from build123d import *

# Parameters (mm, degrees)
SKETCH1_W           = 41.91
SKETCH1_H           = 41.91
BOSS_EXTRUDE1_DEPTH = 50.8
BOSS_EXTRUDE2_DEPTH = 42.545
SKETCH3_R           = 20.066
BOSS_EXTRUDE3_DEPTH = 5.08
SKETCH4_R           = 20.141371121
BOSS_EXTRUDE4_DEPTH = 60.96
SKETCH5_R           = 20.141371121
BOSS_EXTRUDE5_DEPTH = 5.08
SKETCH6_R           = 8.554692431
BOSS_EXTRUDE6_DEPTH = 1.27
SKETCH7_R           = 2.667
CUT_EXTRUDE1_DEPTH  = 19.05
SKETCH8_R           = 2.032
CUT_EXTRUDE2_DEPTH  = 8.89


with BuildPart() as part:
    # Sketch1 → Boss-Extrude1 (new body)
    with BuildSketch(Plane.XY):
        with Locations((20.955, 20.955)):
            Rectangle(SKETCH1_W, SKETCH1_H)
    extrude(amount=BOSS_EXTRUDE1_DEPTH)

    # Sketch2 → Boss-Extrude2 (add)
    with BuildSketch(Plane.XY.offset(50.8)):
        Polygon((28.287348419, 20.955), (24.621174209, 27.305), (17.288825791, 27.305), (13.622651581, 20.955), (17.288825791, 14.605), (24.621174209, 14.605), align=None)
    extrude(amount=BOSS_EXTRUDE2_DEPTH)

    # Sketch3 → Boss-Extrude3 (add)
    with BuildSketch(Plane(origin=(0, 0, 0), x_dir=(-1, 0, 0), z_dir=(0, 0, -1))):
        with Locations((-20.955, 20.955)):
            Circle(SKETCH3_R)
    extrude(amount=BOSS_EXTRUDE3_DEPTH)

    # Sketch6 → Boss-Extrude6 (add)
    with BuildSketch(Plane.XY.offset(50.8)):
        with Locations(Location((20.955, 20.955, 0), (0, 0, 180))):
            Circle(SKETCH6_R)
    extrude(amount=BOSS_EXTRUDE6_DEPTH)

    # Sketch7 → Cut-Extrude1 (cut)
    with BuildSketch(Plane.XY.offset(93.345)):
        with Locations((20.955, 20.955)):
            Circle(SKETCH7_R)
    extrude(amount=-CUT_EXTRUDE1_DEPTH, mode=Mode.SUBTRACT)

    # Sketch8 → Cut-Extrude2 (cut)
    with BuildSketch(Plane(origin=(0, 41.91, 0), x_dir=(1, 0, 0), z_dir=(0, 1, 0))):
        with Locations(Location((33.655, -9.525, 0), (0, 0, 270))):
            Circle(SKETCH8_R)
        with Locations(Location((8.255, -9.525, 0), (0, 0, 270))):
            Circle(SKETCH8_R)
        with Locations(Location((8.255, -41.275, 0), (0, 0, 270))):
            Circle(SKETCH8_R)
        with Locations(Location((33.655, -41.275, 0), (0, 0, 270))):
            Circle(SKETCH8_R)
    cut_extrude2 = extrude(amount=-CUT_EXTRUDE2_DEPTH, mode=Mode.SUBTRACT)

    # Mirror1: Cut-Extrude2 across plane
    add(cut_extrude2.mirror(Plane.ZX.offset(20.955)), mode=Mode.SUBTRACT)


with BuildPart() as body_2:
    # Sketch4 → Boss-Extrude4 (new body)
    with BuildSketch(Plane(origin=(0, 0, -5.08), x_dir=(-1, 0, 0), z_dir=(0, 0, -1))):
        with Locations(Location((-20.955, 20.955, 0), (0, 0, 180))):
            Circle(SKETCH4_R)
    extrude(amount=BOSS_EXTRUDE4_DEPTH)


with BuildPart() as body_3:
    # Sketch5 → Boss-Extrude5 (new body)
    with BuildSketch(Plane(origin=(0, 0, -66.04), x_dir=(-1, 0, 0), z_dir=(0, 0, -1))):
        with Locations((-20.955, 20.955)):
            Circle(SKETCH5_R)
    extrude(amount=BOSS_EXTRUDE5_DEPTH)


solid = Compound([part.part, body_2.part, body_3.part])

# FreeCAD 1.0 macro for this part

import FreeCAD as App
import Part
import Sketcher

V = App.Vector
Q = App.Units.Quantity

doc = App.newDocument("Part")
body = doc.addObject("PartDesign::Body", "Body")

sketch1 = doc.addObject("Sketcher::SketchObject", "Sketch")
body.addObject(sketch1)
sketch1.AttachmentSupport = (doc.XY_Plane, [""])
sketch1.MapMode = "FlatFace"
sketch1.addGeometry(Part.LineSegment(V(0, 42, 0), V(0, 0, 0)), False)
sketch1.addGeometry(Part.LineSegment(V(0, 0, 0), V(42, 0, 0)), False)
sketch1.addGeometry(Part.LineSegment(V(42, 0, 0), V(42, 42, 0)), False)
sketch1.addGeometry(Part.LineSegment(V(42, 42, 0), V(0, 42, 0)), False)
sketch1.addConstraint(Sketcher.Constraint("Coincident", 0, 2, 1, 1))
sketch1.addConstraint(Sketcher.Constraint("Coincident", 1, 2, 2, 1))
sketch1.addConstraint(Sketcher.Constraint("Coincident", 2, 2, 3, 1))
sketch1.addConstraint(Sketcher.Constraint("Coincident", 3, 2, 0, 1))
sketch1.addConstraint(Sketcher.Constraint("Vertical", 0))
sketch1.addConstraint(Sketcher.Constraint("Horizontal", 1))
sketch1.addConstraint(Sketcher.Constraint("Vertical", 2))
sketch1.addConstraint(Sketcher.Constraint("Horizontal", 3))
sketch1.addConstraint(Sketcher.Constraint("Coincident", 0, 2, -1, 1))
sketch1.addConstraint(Sketcher.Constraint("Equal", 3, 0))
sketch1.addConstraint(Sketcher.Constraint("DistanceX", 1, 1, 1, 2, Q("1.65 in")))
pad1 = doc.addObject("PartDesign::Pad", "Pad")
body.addObject(pad1)
pad1.Profile = sketch1
pad1.Length = Q("2 in")

sketch2 = doc.addObject("Sketcher::SketchObject", "Sketch001")
body.addObject(sketch2)
sketch2.AttachmentSupport = (doc.XY_Plane, [""])
sketch2.MapMode = "FlatFace"
sketch2.AttachmentOffset = App.Placement(V(0, 0, 2 * 25.4), App.Rotation())
sketch2.addGeometry(Part.LineSegment(V(28, 21, 0), V(25, 27, 0)), False)
sketch2.addGeometry(Part.LineSegment(V(25, 27, 0), V(17, 27, 0)), False)
sketch2.addGeometry(Part.LineSegment(V(17, 27, 0), V(14, 21, 0)), False)
sketch2.addGeometry(Part.LineSegment(V(14, 21, 0), V(17, 15, 0)), False)
sketch2.addGeometry(Part.LineSegment(V(17, 15, 0), V(25, 15, 0)), False)
sketch2.addGeometry(Part.LineSegment(V(25, 15, 0), V(28, 21, 0)), False)
sketch2.addConstraint(Sketcher.Constraint("Coincident", 0, 2, 1, 1))
sketch2.addConstraint(Sketcher.Constraint("Coincident", 1, 2, 2, 1))
sketch2.addConstraint(Sketcher.Constraint("Coincident", 2, 2, 3, 1))
sketch2.addConstraint(Sketcher.Constraint("Coincident", 3, 2, 4, 1))
sketch2.addConstraint(Sketcher.Constraint("Coincident", 4, 2, 5, 1))
sketch2.addConstraint(Sketcher.Constraint("Coincident", 5, 2, 0, 1))
sketch2.addConstraint(Sketcher.Constraint("Horizontal", 1))
sketch2.addConstraint(Sketcher.Constraint("Horizontal", 4))
sketch2.addConstraint(Sketcher.Constraint("Parallel", 0, 3))
sketch2.addConstraint(Sketcher.Constraint("Parallel", 2, 5))
sketch2.addConstraint(Sketcher.Constraint("Horizontal", 2, 2, 5, 2))
sketch2.addConstraint(Sketcher.Constraint("Vertical", 1, 2, 3, 2))
sketch2.addConstraint(Sketcher.Constraint("Vertical", 0, 2, 4, 2))
sketch2.addConstraint(Sketcher.Constraint("Angle", 0, Q("120 deg")))
sketch2.addConstraint(Sketcher.Constraint("DistanceY", 3, 2, 1, 2, Q("0.5 in")))
sketch2.addConstraint(Sketcher.Constraint("DistanceY", -1, 1, 0, 2, Q("1.075 in")))
sketch2.addConstraint(Sketcher.Constraint("DistanceX", 1, 2, 1, 1, 7.332348))
sketch2.addConstraint(Sketcher.Constraint("DistanceX", -1, 1, 2, 2, 13.622652))
pad2 = doc.addObject("PartDesign::Pad", "Pad001")
body.addObject(pad2)
pad2.Profile = sketch2
pad2.Length = Q("1.675 in")

sketch3 = doc.addObject("Sketcher::SketchObject", "Sketch002")
body.addObject(sketch3)
sketch3.AttachmentSupport = (doc.XY_Plane, [""])
sketch3.MapMode = "FlatFace"
sketch3.addGeometry(Part.Circle(V(21, 21, 0), V(0, 0, 1), 20), False)
sketch3.addConstraint(Sketcher.Constraint("Diameter", 0, Q("1.58 in")))
sketch3.addConstraint(Sketcher.Constraint("DistanceX", -1, 1, 0, 3, Q("0.825 in")))
sketch3.addConstraint(Sketcher.Constraint("DistanceY", -1, 1, 0, 3, Q("0.825 in")))
pad3 = doc.addObject("PartDesign::Pad", "Pad002")
body.addObject(pad3)
pad3.Profile = sketch3
pad3.Length = Q("0.2 in")
pad3.Reversed = True

sketch4 = doc.addObject("Sketcher::SketchObject", "Sketch003")
body.addObject(sketch4)
sketch4.AttachmentSupport = (doc.XY_Plane, [""])
sketch4.MapMode = "FlatFace"
sketch4.AttachmentOffset = App.Placement(V(0, 0, 2 * 25.4), App.Rotation())
sketch4.addGeometry(Part.Circle(V(21, 21, 0), V(0, 0, 1), 9), False)
sketch4.addConstraint(Sketcher.Constraint("DistanceX", -1, 1, 0, 3, Q("0.825 in")))
sketch4.addConstraint(Sketcher.Constraint("DistanceY", -1, 1, 0, 3, Q("0.825 in")))
sketch4.addConstraint(Sketcher.Constraint("Diameter", 0, 17.109385))
pad4 = doc.addObject("PartDesign::Pad", "Pad003")
body.addObject(pad4)
pad4.Profile = sketch4
pad4.Length = Q("0.05 in")

sketch5 = doc.addObject("Sketcher::SketchObject", "Sketch004")
body.addObject(sketch5)
sketch5.AttachmentSupport = (doc.XY_Plane, [""])
sketch5.MapMode = "FlatFace"
sketch5.AttachmentOffset = App.Placement(V(0, 0, 3.675 * 25.4), App.Rotation())
sketch5.addGeometry(Part.Circle(V(21, 21, 0), V(0, 0, 1), 2.7), False)
sketch5.addConstraint(Sketcher.Constraint("Diameter", 0, Q("0.21 in")))
sketch5.addConstraint(Sketcher.Constraint("DistanceX", -1, 1, 0, 3, Q("0.825 in")))
sketch5.addConstraint(Sketcher.Constraint("DistanceY", -1, 1, 0, 3, Q("0.825 in")))
pocket1 = doc.addObject("PartDesign::Pocket", "Pocket")
body.addObject(pocket1)
pocket1.Profile = sketch5
pocket1.Length = Q("0.75 in")

sketch6 = doc.addObject("Sketcher::SketchObject", "Sketch005")
body.addObject(sketch6)
sketch6.AttachmentSupport = (doc.XZ_Plane, [""])
sketch6.MapMode = "FlatFace"
sketch6.AttachmentOffset = App.Placement(V(0, 0, -1.65 * 25.4), App.Rotation())
sketch6.addGeometry(Part.Circle(V(33.7, 9.5, 0), V(0, 0, 1), 2), False)
sketch6.addGeometry(Part.Circle(V(8.3, 9.5, 0), V(0, 0, 1), 2), False)
sketch6.addGeometry(Part.Circle(V(8.3, 41.3, 0), V(0, 0, 1), 2), False)
sketch6.addGeometry(Part.Circle(V(33.7, 41.3, 0), V(0, 0, 1), 2), False)
sketch6.addConstraint(Sketcher.Constraint("Equal", 0, 1))
sketch6.addConstraint(Sketcher.Constraint("Equal", 1, 2))
sketch6.addConstraint(Sketcher.Constraint("Equal", 2, 3))
sketch6.addConstraint(Sketcher.Constraint("Horizontal", 0, 3, 1, 3))
sketch6.addConstraint(Sketcher.Constraint("Horizontal", 2, 3, 3, 3))
sketch6.addConstraint(Sketcher.Constraint("Vertical", 1, 3, 2, 3))
sketch6.addConstraint(Sketcher.Constraint("Vertical", 0, 3, 3, 3))
sketch6.addConstraint(Sketcher.Constraint("Diameter", 0, Q("0.16 in")))
sketch6.addConstraint(Sketcher.Constraint("DistanceX", 1, 3, 0, 3, Q("1 in")))
sketch6.addConstraint(Sketcher.Constraint("DistanceY", 1, 3, 2, 3, Q("1.25 in")))
sketch6.addConstraint(Sketcher.Constraint("DistanceX", -1, 1, 0, 3, Q("1.325 in")))
sketch6.addConstraint(Sketcher.Constraint("DistanceY", -1, 1, 0, 3, Q("0.375 in")))
pocket2 = doc.addObject("PartDesign::Pocket", "Pocket001")
body.addObject(pocket2)
pocket2.Profile = sketch6
pocket2.Length = Q("0.35 in")
pocket2.Reversed = True
doc.recompute()

datumplane = doc.addObject("PartDesign::Plane", "DatumPlane")
body.addObject(datumplane)
datumplane.AttachmentSupport = (doc.XZ_Plane, [""])
datumplane.MapMode = "FlatFace"
datumplane.AttachmentOffset = App.Placement(V(0, 0, -0.825 * 25.4), App.Rotation())
mirrored = doc.addObject("PartDesign::Mirrored", "Mirrored")
body.addObject(mirrored)
mirrored.Originals = [pocket2]
mirrored.MirrorPlane = (datumplane, [""])
body.Tip = mirrored
body2 = doc.addObject("PartDesign::Body", "Body001")

sketch7 = doc.addObject("Sketcher::SketchObject", "Sketch006")
body2.addObject(sketch7)
sketch7.AttachmentSupport = (doc.getObject("XY_Plane001"), [""])
sketch7.MapMode = "FlatFace"
sketch7.AttachmentOffset = App.Placement(V(0, 0, -0.2 * 25.4), App.Rotation())
sketch7.addGeometry(Part.Circle(V(21, 21, 0), V(0, 0, 1), 20), False)
sketch7.addConstraint(Sketcher.Constraint("DistanceX", -1, 1, 0, 3, Q("0.825 in")))
sketch7.addConstraint(Sketcher.Constraint("DistanceY", -1, 1, 0, 3, Q("0.825 in")))
sketch7.addConstraint(Sketcher.Constraint("Diameter", 0, 40.282742))
pad5 = doc.addObject("PartDesign::Pad", "Pad004")
body2.addObject(pad5)
pad5.Profile = sketch7
pad5.Length = Q("2.4 in")
pad5.Reversed = True
body3 = doc.addObject("PartDesign::Body", "Body002")

sketch8 = doc.addObject("Sketcher::SketchObject", "Sketch007")
body3.addObject(sketch8)
sketch8.AttachmentSupport = (doc.getObject("XY_Plane002"), [""])
sketch8.MapMode = "FlatFace"
sketch8.AttachmentOffset = App.Placement(V(0, 0, -2.6 * 25.4), App.Rotation())
sketch8.addGeometry(Part.Circle(V(21, 21, 0), V(0, 0, 1), 20), False)
sketch8.addConstraint(Sketcher.Constraint("DistanceX", -1, 1, 0, 3, Q("0.825 in")))
sketch8.addConstraint(Sketcher.Constraint("DistanceY", -1, 1, 0, 3, Q("0.825 in")))
sketch8.addConstraint(Sketcher.Constraint("Diameter", 0, 40.282742))
pad6 = doc.addObject("PartDesign::Pad", "Pad005")
body3.addObject(pad6)
pad6.Profile = sketch8
pad6.Length = Q("0.2 in")
pad6.Reversed = True

doc.recompute()
